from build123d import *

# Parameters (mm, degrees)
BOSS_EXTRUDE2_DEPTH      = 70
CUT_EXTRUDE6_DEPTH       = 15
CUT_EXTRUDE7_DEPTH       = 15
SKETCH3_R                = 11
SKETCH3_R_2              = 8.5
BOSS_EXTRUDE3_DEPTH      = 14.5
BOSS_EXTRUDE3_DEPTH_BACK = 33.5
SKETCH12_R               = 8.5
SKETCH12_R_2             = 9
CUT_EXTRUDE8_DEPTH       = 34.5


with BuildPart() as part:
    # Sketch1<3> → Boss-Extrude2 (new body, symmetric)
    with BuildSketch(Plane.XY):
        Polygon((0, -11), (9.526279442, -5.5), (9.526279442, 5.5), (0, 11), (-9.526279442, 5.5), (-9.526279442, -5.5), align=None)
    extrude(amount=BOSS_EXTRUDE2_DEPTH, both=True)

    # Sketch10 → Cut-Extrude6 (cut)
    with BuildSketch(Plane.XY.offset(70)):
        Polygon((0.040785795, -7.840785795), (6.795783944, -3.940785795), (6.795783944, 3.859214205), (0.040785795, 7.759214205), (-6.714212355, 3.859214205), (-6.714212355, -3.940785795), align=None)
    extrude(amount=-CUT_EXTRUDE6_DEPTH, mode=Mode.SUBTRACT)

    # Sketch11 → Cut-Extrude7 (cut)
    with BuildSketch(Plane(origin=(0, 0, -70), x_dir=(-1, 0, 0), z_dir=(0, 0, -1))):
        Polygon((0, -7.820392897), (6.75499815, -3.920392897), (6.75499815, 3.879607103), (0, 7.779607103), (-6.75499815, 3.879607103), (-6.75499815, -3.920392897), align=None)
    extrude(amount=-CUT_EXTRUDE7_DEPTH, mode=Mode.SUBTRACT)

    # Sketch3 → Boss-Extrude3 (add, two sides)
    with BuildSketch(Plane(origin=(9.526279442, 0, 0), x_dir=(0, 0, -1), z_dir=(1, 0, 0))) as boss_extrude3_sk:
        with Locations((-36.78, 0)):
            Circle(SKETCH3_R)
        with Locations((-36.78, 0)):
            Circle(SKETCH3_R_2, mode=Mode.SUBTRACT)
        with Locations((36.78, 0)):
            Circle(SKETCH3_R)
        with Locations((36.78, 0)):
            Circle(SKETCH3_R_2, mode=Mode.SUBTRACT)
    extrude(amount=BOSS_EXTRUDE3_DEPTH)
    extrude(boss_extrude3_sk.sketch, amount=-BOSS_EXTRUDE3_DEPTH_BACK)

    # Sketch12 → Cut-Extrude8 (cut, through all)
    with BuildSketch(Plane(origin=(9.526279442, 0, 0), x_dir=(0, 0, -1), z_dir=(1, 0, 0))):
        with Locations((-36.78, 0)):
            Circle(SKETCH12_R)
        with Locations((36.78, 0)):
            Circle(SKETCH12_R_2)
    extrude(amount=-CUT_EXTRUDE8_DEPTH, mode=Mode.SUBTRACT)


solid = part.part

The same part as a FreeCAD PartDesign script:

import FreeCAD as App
import Part
import Sketcher
Q = App.Units.Quantity


def add_polygon(sketch, points):
    """Adds a closed chain of lines whose ends are joined by coincident constraints."""
    first, n = sketch.GeometryCount, len(points)
    for a, b in zip(points, points[1:] + points[:1]):
        sketch.addGeometry(Part.LineSegment(App.Vector(*a, 0), App.Vector(*b, 0)), False)
    for i in range(n):
        sketch.addConstraint(Sketcher.Constraint("Coincident", first + i, 2, first + (i + 1) % n, 1))

doc = App.newDocument("Part")
body = doc.addObject("PartDesign::Body", "Body")

# Sketch on XY plane
sketch1 = doc.addObject("Sketcher::SketchObject", "Sketch")
body.addObject(sketch1)
sketch1.AttachmentSupport = (doc.XY_Plane, [""])
sketch1.MapMode = "FlatFace"
add_polygon(sketch1, [(0, -11), (10, -6), (10, 6), (0, 11), (-10, 6), (-10, -6)])  # lines 0-5
sketch1.addConstraint(Sketcher.Constraint("Vertical", 1))
sketch1.addConstraint(Sketcher.Constraint("Vertical", 4))
sketch1.addConstraint(Sketcher.Constraint("Symmetric", 0, 2, 3, 2, -1, 1))
sketch1.addConstraint(Sketcher.Constraint("Symmetric", 2, 2, 5, 2, -1, 1))
sketch1.addConstraint(Sketcher.Constraint("PointOnObject", 2, 2, -2))
sketch1.addConstraint(Sketcher.Constraint("Parallel", 2, 5))
sketch1.addConstraint(Sketcher.Constraint("Horizontal", 1, 2, 3, 2))
sketch1.addConstraint(Sketcher.Constraint("DistanceY", 1, 1, 1, 2, Q("11 mm")))
sketch1.addConstraint(Sketcher.Constraint("Angle", 0, Q("30 deg")))
sketch1.addConstraint(Sketcher.Constraint("Distance", 0, Q("11 mm")))
pad1 = doc.addObject("PartDesign::Pad", "Pad")
body.addObject(pad1)
pad1.Profile = sketch1
pad1.Length = 140
pad1.Midplane = True

# Sketch on XY plane
sketch2 = doc.addObject("Sketcher::SketchObject", "Sketch001")
body.addObject(sketch2)
sketch2.AttachmentSupport = (doc.XY_Plane, [""])
sketch2.MapMode = "FlatFace"
sketch2.AttachmentOffset = App.Placement(App.Vector(0, 0, 70), App.Rotation())
add_polygon(sketch2, [(0, -8), (7, -4), (7, 4), (0, 8), (-7, 4), (-7, -4)])  # lines 0-5
sketch2.addConstraint(Sketcher.Constraint("Vertical", 1))
sketch2.addConstraint(Sketcher.Constraint("Vertical", 4))
sketch2.addConstraint(Sketcher.Constraint("Parallel", 0, 3))
sketch2.addConstraint(Sketcher.Constraint("Parallel", 2, 5))
sketch2.addConstraint(Sketcher.Constraint("Horizontal", 1, 2, 3, 2))
sketch2.addConstraint(Sketcher.Constraint("Horizontal", 0, 2, 4, 2))
sketch2.addConstraint(Sketcher.Constraint("Vertical", 2, 2, 5, 2))
sketch2.addConstraint(Sketcher.Constraint("Angle", 0, Q("30 deg")))
sketch2.addConstraint(Sketcher.Constraint("DistanceY", 1, 1, 1, 2, Q("7.8 mm")))
sketch2.addConstraint(Sketcher.Constraint("Distance", 0, Q("7.8 mm")))
sketch2.addConstraint(Sketcher.Constraint("DistanceX", -1, 1, 0, 2, Q("6.795784 mm")))
sketch2.addConstraint(Sketcher.Constraint("DistanceY", 0, 2, -1, 1, Q("3.940786 mm")))
pocket1 = doc.addObject("PartDesign::Pocket", "Pocket")
body.addObject(pocket1)
pocket1.Profile = sketch2
pocket1.Length = 15

# Sketch on XY plane
sketch3 = doc.addObject("Sketcher::SketchObject", "Sketch002")
body.addObject(sketch3)
sketch3.AttachmentSupport = (doc.XY_Plane, [""])
sketch3.MapMode = "FlatFace"
sketch3.AttachmentOffset = App.Placement(App.Vector(0, 0, -70), App.Rotation())
add_polygon(sketch3, [(0, -8), (-7, -4), (-7, 4), (0, 8), (7, 4), (7, -4)])  # lines 0-5
sketch3.addConstraint(Sketcher.Constraint("Vertical", 1))
sketch3.addConstraint(Sketcher.Constraint("Vertical", 4))
sketch3.addConstraint(Sketcher.Constraint("Symmetric", 1, 2, 3, 2, -2))
sketch3.addConstraint(Sketcher.Constraint("PointOnObject", 2, 2, -2))
sketch3.addConstraint(Sketcher.Constraint("PointOnObject", 5, 2, -2))
sketch3.addConstraint(Sketcher.Constraint("Parallel", 0, 3))
sketch3.addConstraint(Sketcher.Constraint("Parallel", 2, 5))
sketch3.addConstraint(Sketcher.Constraint("Angle", 0, Q("150 deg")))
sketch3.addConstraint(Sketcher.Constraint("DistanceY", 1, 1, 1, 2, Q("7.8 mm")))
sketch3.addConstraint(Sketcher.Constraint("Distance", 0, Q("7.8 mm")))
sketch3.addConstraint(Sketcher.Constraint("DistanceY", 0, 2, -1, 1, Q("3.920393 mm")))
pocket2 = doc.addObject("PartDesign::Pocket", "Pocket001")
body.addObject(pocket2)
pocket2.Profile = sketch3
pocket2.Length = 15
pocket2.Reversed = True

# Sketch on YZ plane
sketch4 = doc.addObject("Sketcher::SketchObject", "Sketch003")
body.addObject(sketch4)
sketch4.AttachmentSupport = (doc.YZ_Plane, [""])
sketch4.MapMode = "FlatFace"
sketch4.AttachmentOffset = App.Placement(App.Vector(0, 0, 9.526279), App.Rotation())
sketch4.addGeometry(Part.Circle(App.Vector(0, 37, 0), App.Vector(0, 0, 1), 11), False)
sketch4.addGeometry(Part.Circle(App.Vector(0, 37, 0), App.Vector(0, 0, 1), 8), False)
sketch4.addGeometry(Part.Circle(App.Vector(0, -37, 0), App.Vector(0, 0, 1), 11), False)
sketch4.addGeometry(Part.Circle(App.Vector(0, -37, 0), App.Vector(0, 0, 1), 8), False)
sketch4.addConstraint(Sketcher.Constraint("Coincident", 1, 3, 0, 3))
sketch4.addConstraint(Sketcher.Constraint("Coincident", 3, 3, 2, 3))
sketch4.addConstraint(Sketcher.Constraint("Equal", 0, 2))
sketch4.addConstraint(Sketcher.Constraint("Equal", 1, 3))
sketch4.addConstraint(Sketcher.Constraint("Symmetric", 0, 3, 2, 3, -1, 1))
sketch4.addConstraint(Sketcher.Constraint("PointOnObject", 0, 3, -2))
sketch4.addConstraint(Sketcher.Constraint("Diameter", 0, Q("22 mm")))
sketch4.addConstraint(Sketcher.Constraint("Diameter", 1, Q("17 mm")))
sketch4.addConstraint(Sketcher.Constraint("DistanceY", -1, 1, 0, 3, Q("36.78 mm")))
pad2 = doc.addObject("PartDesign::Pad", "Pad001")
body.addObject(pad2)
pad2.Profile = sketch4
pad2.Type = "TwoLengths"
pad2.Length = 14.5
pad2.Length2 = 33.5

# Sketch on YZ plane
sketch5 = doc.addObject("Sketcher::SketchObject", "Sketch004")
body.addObject(sketch5)
sketch5.AttachmentSupport = (doc.YZ_Plane, [""])
sketch5.MapMode = "FlatFace"
sketch5.AttachmentOffset = App.Placement(App.Vector(0, 0, 9.526279), App.Rotation())
sketch5.addGeometry(Part.Circle(App.Vector(0, 37, 0), App.Vector(0, 0, 1), 8), False)
sketch5.addGeometry(Part.Circle(App.Vector(0, -37, 0), App.Vector(0, 0, 1), 9), False)
sketch5.addConstraint(Sketcher.Constraint("Symmetric", 0, 3, 1, 3, -1, 1))
sketch5.addConstraint(Sketcher.Constraint("PointOnObject", 0, 3, -2))
sketch5.addConstraint(Sketcher.Constraint("Diameter", 0, Q("17 mm")))
sketch5.addConstraint(Sketcher.Constraint("Diameter", 1, Q("18 mm")))
sketch5.addConstraint(Sketcher.Constraint("DistanceY", -1, 1, 0, 3, Q("36.78 mm")))
pocket3 = doc.addObject("PartDesign::Pocket", "Pocket002")
body.addObject(pocket3)
pocket3.Profile = sketch5
pocket3.Type = "ThroughAll"

doc.recompute()
